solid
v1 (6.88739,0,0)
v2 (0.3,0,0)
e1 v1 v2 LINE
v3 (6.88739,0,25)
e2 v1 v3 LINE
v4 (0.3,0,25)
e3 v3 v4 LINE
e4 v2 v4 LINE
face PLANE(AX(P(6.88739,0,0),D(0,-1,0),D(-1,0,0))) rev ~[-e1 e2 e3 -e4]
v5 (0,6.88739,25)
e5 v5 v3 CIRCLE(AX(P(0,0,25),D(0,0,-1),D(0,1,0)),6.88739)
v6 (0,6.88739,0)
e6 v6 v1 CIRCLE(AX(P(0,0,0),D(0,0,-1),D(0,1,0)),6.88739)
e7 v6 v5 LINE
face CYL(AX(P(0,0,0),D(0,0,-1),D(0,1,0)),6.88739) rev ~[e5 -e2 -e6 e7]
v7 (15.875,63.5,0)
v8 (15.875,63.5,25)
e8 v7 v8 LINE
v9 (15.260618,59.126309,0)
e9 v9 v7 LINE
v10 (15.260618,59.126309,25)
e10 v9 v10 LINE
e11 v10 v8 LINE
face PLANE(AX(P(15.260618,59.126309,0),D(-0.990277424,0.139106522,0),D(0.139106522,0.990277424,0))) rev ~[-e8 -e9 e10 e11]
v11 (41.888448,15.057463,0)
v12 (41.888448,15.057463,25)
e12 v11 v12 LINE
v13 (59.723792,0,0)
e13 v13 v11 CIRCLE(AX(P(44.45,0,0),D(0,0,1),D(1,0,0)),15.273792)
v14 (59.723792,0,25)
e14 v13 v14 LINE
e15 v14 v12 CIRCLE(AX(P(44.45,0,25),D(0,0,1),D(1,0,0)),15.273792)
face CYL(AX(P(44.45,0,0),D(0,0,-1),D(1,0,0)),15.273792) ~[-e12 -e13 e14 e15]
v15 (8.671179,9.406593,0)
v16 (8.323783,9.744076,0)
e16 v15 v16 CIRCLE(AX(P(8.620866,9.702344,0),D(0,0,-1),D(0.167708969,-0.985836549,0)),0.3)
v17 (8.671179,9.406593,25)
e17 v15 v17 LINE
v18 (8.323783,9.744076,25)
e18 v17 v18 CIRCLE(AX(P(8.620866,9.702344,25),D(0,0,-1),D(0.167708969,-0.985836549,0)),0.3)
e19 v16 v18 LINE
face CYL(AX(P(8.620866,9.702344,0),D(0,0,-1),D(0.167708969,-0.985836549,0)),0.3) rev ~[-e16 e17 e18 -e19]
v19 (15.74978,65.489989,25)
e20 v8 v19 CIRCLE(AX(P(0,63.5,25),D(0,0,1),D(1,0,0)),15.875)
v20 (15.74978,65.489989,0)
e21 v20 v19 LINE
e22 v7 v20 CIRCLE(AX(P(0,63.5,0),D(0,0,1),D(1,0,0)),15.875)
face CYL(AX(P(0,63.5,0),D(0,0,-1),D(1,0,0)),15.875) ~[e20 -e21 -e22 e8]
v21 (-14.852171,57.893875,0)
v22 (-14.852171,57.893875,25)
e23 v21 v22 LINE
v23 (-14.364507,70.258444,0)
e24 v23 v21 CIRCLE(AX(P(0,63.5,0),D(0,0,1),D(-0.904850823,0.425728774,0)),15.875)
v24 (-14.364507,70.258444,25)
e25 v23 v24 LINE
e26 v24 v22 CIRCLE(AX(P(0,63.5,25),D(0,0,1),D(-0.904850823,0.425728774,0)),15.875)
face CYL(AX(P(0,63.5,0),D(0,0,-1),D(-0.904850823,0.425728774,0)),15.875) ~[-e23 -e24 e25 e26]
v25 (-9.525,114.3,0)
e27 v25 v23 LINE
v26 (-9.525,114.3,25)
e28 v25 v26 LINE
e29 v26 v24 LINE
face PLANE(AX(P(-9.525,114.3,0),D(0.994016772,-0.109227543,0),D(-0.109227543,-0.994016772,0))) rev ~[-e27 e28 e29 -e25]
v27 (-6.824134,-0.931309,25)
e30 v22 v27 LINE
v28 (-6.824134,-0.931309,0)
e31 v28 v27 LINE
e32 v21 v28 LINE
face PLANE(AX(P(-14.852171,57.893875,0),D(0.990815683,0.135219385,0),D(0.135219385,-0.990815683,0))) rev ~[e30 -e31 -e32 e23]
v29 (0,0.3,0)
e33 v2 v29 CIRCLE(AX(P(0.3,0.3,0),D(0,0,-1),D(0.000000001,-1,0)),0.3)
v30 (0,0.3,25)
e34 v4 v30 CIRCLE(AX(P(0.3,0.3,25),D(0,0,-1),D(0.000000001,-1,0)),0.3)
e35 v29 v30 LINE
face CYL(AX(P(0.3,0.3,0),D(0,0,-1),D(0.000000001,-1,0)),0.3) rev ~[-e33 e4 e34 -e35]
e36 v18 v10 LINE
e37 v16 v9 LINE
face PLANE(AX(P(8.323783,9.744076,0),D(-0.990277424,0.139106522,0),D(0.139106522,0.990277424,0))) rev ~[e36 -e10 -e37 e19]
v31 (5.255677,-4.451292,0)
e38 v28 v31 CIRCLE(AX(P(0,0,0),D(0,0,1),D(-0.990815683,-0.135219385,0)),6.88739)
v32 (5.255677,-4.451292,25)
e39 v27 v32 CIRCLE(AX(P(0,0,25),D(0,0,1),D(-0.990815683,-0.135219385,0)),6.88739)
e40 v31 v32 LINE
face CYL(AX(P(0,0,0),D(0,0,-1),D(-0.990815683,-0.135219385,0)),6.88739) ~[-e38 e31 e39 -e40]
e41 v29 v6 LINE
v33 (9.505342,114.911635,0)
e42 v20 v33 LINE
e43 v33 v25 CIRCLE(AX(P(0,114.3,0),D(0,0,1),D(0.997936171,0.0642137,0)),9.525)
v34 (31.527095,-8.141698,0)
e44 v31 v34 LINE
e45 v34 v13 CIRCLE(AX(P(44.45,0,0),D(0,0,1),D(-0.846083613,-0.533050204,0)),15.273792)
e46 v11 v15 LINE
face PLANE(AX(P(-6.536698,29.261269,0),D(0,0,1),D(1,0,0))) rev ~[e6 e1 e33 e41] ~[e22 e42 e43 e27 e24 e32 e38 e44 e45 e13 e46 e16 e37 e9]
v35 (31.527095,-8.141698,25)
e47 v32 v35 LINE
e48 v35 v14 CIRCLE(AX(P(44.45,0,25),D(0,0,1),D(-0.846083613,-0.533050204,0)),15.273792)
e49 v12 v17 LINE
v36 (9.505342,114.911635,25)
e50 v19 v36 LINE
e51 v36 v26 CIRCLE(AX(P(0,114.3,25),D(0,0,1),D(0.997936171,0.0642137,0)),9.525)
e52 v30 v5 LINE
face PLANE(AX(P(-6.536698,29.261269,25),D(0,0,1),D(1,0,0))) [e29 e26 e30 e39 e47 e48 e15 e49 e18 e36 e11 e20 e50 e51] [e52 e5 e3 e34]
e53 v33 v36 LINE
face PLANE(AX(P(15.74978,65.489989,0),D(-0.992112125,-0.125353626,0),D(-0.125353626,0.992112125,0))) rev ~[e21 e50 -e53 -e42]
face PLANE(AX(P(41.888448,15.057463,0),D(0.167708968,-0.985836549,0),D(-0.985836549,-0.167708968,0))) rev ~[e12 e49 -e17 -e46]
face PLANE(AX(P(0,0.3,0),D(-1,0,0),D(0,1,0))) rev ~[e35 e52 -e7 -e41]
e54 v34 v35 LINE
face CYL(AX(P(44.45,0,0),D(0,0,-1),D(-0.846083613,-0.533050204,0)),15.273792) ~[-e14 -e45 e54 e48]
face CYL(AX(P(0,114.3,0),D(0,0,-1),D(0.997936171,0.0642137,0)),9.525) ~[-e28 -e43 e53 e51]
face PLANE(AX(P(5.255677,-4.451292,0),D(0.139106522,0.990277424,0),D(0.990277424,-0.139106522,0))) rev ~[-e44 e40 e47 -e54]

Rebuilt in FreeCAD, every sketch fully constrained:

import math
import FreeCAD as App
import Part
import Sketcher

doc = App.newDocument("Part")
body = doc.addObject("PartDesign::Body", "Body")

# Sketch on XY plane
sketch1 = body.newObject("Sketcher::SketchObject", "Sketch")
sketch1.AttachmentSupport = (doc.getObject("XY_Plane"), [""])
sketch1.MapMode = "FlatFace"
sketch1.addGeometry(Part.LineSegment(App.Vector(5.26, -4.45, 0), App.Vector(31.53, -8.14, 0)), False)
sketch1.addGeometry(Part.ArcOfCircle(Part.Circle(App.Vector(44.45, 0, 0), App.Vector(0, 0, 1), 15.27), math.radians(-148), math.radians(0)), False)
sketch1.addGeometry(Part.ArcOfCircle(Part.Circle(App.Vector(44.45, 0, 0), App.Vector(0, 0, 1), 15.27), math.radians(0), math.radians(100)), False)
sketch1.addGeometry(Part.LineSegment(App.Vector(41.89, 15.06, 0), App.Vector(8.67, 9.41, 0)), False)
sketch1.addGeometry(Part.ArcOfCircle(Part.Circle(App.Vector(8.62, 9.7, 0), App.Vector(0, 0, 1), 0.3), math.radians(172), math.radians(280)), False)
sketch1.addGeometry(Part.LineSegment(App.Vector(8.32, 9.74, 0), App.Vector(15.26, 59.13, 0)), False)
sketch1.addGeometry(Part.LineSegment(App.Vector(15.26, 59.13, 0), App.Vector(15.88, 63.5, 0)), False)
sketch1.addGeometry(Part.ArcOfCircle(Part.Circle(App.Vector(0, 63.5, 0), App.Vector(0, 0, 1), 15.88), math.radians(0), math.radians(7.2)), False)
sketch1.addGeometry(Part.LineSegment(App.Vector(15.75, 65.49, 0), App.Vector(9.51, 114.91, 0)), False)
sketch1.addGeometry(Part.ArcOfCircle(Part.Circle(App.Vector(0, 114.3, 0), App.Vector(0, 0, 1), 9.53), math.radians(4), math.radians(180)), False)
sketch1.addGeometry(Part.LineSegment(App.Vector(-9.53, 114.3, 0), App.Vector(-14.36, 70.26, 0)), False)
sketch1.addGeometry(Part.ArcOfCircle(Part.Circle(App.Vector(0, 63.5, 0), App.Vector(0, 0, 1), 15.88), math.radians(155), math.radians(201)), False)
sketch1.addGeometry(Part.LineSegment(App.Vector(-14.85, 57.89, 0), App.Vector(-6.82, -0.93, 0)), False)
sketch1.addGeometry(Part.ArcOfCircle(Part.Circle(App.Vector(0, 0, 0), App.Vector(0, 0, 1), 6.89), math.radians(-172), math.radians(-40)), False)
sketch1.addGeometry(Part.ArcOfCircle(Part.Circle(App.Vector(0, 0, 0), App.Vector(0, 0, 1), 6.89), math.radians(0), math.radians(90)), False)
sketch1.addGeometry(Part.LineSegment(App.Vector(6.89, 0, 0), App.Vector(0.3, 0, 0)), False)
sketch1.addGeometry(Part.ArcOfCircle(Part.Circle(App.Vector(0.3, 0.3, 0), App.Vector(0, 0, 1), 0.3), math.radians(180), math.radians(270)), False)
sketch1.addGeometry(Part.LineSegment(App.Vector(0, 0.3, 0), App.Vector(0, 6.89, 0)), False)
sketch1.addConstraint(Sketcher.Constraint("Coincident", 0, 2, 1, 1))
sketch1.addConstraint(Sketcher.Constraint("Tangent", 1, 2, 2, 1))
sketch1.addConstraint(Sketcher.Constraint("Tangent", 2, 2, 3, 1))
sketch1.addConstraint(Sketcher.Constraint("Tangent", 3, 2, 4, 2))
sketch1.addConstraint(Sketcher.Constraint("Tangent", 4, 1, 5, 1))
sketch1.addConstraint(Sketcher.Constraint("Coincident", 5, 2, 6, 1))
sketch1.addConstraint(Sketcher.Constraint("Coincident", 6, 2, 7, 1))
sketch1.addConstraint(Sketcher.Constraint("Tangent", 7, 2, 8, 1))
sketch1.addConstraint(Sketcher.Constraint("Coincident", 8, 2, 9, 1))
sketch1.addConstraint(Sketcher.Constraint("Coincident", 9, 2, 10, 1))
sketch1.addConstraint(Sketcher.Constraint("Coincident", 10, 2, 11, 1))
sketch1.addConstraint(Sketcher.Constraint("Coincident", 11, 2, 12, 1))
sketch1.addConstraint(Sketcher.Constraint("Tangent", 12, 2, 13, 1))
sketch1.addConstraint(Sketcher.Constraint("Coincident", 13, 2, 0, 1))
sketch1.addConstraint(Sketcher.Constraint("Coincident", 14, 1, 15, 1))
sketch1.addConstraint(Sketcher.Constraint("Tangent", 15, 2, 16, 2))
sketch1.addConstraint(Sketcher.Constraint("Tangent", 16, 1, 17, 1))
sketch1.addConstraint(Sketcher.Constraint("Coincident", 17, 2, 14, 2))
sketch1.addConstraint(Sketcher.Constraint("Horizontal", 15))
sketch1.addConstraint(Sketcher.Constraint("Vertical", 17))
sketch1.addConstraint(Sketcher.Constraint("Coincident", 13, 3, -1, 1))
sketch1.addConstraint(Sketcher.Constraint("Coincident", 14, 3, -1, 1))
sketch1.addConstraint(Sketcher.Constraint("Coincident", 11, 3, 7, 3))
sketch1.addConstraint(Sketcher.Constraint("Equal", 1, 2))
sketch1.addConstraint(Sketcher.Constraint("Equal", 7, 11))
sketch1.addConstraint(Sketcher.Constraint("Equal", 13, 14))
sketch1.addConstraint(Sketcher.Constraint("Equal", 4, 16))
sketch1.addConstraint(Sketcher.Constraint("PointOnObject", 1, 3, -1))
sketch1.addConstraint(Sketcher.Constraint("PointOnObject", 7, 3, -2))
sketch1.addConstraint(Sketcher.Constraint("PointOnObject", 9, 3, -2))
sketch1.addConstraint(Sketcher.Constraint("PointOnObject", 1, 2, -1))
sketch1.addConstraint(Sketcher.Constraint("PointOnObject", 14, 1, -1))
sketch1.addConstraint(Sketcher.Constraint("PointOnObject", 16, 1, -2))
sketch1.addConstraint(Sketcher.Constraint("Perpendicular", 0, 5))
sketch1.addConstraint(Sketcher.Constraint("Parallel", 5, 6))
sketch1.addConstraint(Sketcher.Constraint("Horizontal", 11, 3, 6, 2))
sketch1.addConstraint(Sketcher.Constraint("Radius", 4, 0.3))
sketch1.addConstraint(Sketcher.Constraint("Radius", 7, 15.875))
sketch1.addConstraint(Sketcher.Constraint("Radius", 9, 9.525))
sketch1.addConstraint(Sketcher.Constraint("DistanceY", -1, 1, 7, 3, 63.5))
sketch1.addConstraint(Sketcher.Constraint("DistanceY", -1, 1, 9, 3, 114.3))
sketch1.addConstraint(Sketcher.Constraint("DistanceY", -1, 1, 9, 2, 114.3))
sketch1.addConstraint(Sketcher.Constraint("DistanceX", -1, 1, 1, 3, 44.45))
sketch1.addConstraint(Sketcher.Constraint("Radius", 13, 6.88739))
sketch1.addConstraint(Sketcher.Constraint("Radius", 1, 15.273792))
sketch1.addConstraint(Sketcher.Constraint("Distance", 3, 33.694499))
sketch1.addConstraint(Sketcher.Constraint("DistanceY", 0, 2, -1, 1, 8.141698))
sketch1.addConstraint(Sketcher.Constraint("DistanceY", 12, 2, 3, 2, 10.337902))
sketch1.addConstraint(Sketcher.Constraint("Distance", 5, 49.86707))
sketch1.addConstraint(Sketcher.Constraint("Distance", 12, 59.370461))
sketch1.addConstraint(Sketcher.Constraint("DistanceY", 11, 2, 10, 2, 12.364569))
sketch1.addConstraint(Sketcher.Constraint("Distance", 8, 49.814578))
pad1 = body.newObject("PartDesign::Pad", "Pad")
pad1.Profile = sketch1
pad1.Length = 25

doc.recompute()
